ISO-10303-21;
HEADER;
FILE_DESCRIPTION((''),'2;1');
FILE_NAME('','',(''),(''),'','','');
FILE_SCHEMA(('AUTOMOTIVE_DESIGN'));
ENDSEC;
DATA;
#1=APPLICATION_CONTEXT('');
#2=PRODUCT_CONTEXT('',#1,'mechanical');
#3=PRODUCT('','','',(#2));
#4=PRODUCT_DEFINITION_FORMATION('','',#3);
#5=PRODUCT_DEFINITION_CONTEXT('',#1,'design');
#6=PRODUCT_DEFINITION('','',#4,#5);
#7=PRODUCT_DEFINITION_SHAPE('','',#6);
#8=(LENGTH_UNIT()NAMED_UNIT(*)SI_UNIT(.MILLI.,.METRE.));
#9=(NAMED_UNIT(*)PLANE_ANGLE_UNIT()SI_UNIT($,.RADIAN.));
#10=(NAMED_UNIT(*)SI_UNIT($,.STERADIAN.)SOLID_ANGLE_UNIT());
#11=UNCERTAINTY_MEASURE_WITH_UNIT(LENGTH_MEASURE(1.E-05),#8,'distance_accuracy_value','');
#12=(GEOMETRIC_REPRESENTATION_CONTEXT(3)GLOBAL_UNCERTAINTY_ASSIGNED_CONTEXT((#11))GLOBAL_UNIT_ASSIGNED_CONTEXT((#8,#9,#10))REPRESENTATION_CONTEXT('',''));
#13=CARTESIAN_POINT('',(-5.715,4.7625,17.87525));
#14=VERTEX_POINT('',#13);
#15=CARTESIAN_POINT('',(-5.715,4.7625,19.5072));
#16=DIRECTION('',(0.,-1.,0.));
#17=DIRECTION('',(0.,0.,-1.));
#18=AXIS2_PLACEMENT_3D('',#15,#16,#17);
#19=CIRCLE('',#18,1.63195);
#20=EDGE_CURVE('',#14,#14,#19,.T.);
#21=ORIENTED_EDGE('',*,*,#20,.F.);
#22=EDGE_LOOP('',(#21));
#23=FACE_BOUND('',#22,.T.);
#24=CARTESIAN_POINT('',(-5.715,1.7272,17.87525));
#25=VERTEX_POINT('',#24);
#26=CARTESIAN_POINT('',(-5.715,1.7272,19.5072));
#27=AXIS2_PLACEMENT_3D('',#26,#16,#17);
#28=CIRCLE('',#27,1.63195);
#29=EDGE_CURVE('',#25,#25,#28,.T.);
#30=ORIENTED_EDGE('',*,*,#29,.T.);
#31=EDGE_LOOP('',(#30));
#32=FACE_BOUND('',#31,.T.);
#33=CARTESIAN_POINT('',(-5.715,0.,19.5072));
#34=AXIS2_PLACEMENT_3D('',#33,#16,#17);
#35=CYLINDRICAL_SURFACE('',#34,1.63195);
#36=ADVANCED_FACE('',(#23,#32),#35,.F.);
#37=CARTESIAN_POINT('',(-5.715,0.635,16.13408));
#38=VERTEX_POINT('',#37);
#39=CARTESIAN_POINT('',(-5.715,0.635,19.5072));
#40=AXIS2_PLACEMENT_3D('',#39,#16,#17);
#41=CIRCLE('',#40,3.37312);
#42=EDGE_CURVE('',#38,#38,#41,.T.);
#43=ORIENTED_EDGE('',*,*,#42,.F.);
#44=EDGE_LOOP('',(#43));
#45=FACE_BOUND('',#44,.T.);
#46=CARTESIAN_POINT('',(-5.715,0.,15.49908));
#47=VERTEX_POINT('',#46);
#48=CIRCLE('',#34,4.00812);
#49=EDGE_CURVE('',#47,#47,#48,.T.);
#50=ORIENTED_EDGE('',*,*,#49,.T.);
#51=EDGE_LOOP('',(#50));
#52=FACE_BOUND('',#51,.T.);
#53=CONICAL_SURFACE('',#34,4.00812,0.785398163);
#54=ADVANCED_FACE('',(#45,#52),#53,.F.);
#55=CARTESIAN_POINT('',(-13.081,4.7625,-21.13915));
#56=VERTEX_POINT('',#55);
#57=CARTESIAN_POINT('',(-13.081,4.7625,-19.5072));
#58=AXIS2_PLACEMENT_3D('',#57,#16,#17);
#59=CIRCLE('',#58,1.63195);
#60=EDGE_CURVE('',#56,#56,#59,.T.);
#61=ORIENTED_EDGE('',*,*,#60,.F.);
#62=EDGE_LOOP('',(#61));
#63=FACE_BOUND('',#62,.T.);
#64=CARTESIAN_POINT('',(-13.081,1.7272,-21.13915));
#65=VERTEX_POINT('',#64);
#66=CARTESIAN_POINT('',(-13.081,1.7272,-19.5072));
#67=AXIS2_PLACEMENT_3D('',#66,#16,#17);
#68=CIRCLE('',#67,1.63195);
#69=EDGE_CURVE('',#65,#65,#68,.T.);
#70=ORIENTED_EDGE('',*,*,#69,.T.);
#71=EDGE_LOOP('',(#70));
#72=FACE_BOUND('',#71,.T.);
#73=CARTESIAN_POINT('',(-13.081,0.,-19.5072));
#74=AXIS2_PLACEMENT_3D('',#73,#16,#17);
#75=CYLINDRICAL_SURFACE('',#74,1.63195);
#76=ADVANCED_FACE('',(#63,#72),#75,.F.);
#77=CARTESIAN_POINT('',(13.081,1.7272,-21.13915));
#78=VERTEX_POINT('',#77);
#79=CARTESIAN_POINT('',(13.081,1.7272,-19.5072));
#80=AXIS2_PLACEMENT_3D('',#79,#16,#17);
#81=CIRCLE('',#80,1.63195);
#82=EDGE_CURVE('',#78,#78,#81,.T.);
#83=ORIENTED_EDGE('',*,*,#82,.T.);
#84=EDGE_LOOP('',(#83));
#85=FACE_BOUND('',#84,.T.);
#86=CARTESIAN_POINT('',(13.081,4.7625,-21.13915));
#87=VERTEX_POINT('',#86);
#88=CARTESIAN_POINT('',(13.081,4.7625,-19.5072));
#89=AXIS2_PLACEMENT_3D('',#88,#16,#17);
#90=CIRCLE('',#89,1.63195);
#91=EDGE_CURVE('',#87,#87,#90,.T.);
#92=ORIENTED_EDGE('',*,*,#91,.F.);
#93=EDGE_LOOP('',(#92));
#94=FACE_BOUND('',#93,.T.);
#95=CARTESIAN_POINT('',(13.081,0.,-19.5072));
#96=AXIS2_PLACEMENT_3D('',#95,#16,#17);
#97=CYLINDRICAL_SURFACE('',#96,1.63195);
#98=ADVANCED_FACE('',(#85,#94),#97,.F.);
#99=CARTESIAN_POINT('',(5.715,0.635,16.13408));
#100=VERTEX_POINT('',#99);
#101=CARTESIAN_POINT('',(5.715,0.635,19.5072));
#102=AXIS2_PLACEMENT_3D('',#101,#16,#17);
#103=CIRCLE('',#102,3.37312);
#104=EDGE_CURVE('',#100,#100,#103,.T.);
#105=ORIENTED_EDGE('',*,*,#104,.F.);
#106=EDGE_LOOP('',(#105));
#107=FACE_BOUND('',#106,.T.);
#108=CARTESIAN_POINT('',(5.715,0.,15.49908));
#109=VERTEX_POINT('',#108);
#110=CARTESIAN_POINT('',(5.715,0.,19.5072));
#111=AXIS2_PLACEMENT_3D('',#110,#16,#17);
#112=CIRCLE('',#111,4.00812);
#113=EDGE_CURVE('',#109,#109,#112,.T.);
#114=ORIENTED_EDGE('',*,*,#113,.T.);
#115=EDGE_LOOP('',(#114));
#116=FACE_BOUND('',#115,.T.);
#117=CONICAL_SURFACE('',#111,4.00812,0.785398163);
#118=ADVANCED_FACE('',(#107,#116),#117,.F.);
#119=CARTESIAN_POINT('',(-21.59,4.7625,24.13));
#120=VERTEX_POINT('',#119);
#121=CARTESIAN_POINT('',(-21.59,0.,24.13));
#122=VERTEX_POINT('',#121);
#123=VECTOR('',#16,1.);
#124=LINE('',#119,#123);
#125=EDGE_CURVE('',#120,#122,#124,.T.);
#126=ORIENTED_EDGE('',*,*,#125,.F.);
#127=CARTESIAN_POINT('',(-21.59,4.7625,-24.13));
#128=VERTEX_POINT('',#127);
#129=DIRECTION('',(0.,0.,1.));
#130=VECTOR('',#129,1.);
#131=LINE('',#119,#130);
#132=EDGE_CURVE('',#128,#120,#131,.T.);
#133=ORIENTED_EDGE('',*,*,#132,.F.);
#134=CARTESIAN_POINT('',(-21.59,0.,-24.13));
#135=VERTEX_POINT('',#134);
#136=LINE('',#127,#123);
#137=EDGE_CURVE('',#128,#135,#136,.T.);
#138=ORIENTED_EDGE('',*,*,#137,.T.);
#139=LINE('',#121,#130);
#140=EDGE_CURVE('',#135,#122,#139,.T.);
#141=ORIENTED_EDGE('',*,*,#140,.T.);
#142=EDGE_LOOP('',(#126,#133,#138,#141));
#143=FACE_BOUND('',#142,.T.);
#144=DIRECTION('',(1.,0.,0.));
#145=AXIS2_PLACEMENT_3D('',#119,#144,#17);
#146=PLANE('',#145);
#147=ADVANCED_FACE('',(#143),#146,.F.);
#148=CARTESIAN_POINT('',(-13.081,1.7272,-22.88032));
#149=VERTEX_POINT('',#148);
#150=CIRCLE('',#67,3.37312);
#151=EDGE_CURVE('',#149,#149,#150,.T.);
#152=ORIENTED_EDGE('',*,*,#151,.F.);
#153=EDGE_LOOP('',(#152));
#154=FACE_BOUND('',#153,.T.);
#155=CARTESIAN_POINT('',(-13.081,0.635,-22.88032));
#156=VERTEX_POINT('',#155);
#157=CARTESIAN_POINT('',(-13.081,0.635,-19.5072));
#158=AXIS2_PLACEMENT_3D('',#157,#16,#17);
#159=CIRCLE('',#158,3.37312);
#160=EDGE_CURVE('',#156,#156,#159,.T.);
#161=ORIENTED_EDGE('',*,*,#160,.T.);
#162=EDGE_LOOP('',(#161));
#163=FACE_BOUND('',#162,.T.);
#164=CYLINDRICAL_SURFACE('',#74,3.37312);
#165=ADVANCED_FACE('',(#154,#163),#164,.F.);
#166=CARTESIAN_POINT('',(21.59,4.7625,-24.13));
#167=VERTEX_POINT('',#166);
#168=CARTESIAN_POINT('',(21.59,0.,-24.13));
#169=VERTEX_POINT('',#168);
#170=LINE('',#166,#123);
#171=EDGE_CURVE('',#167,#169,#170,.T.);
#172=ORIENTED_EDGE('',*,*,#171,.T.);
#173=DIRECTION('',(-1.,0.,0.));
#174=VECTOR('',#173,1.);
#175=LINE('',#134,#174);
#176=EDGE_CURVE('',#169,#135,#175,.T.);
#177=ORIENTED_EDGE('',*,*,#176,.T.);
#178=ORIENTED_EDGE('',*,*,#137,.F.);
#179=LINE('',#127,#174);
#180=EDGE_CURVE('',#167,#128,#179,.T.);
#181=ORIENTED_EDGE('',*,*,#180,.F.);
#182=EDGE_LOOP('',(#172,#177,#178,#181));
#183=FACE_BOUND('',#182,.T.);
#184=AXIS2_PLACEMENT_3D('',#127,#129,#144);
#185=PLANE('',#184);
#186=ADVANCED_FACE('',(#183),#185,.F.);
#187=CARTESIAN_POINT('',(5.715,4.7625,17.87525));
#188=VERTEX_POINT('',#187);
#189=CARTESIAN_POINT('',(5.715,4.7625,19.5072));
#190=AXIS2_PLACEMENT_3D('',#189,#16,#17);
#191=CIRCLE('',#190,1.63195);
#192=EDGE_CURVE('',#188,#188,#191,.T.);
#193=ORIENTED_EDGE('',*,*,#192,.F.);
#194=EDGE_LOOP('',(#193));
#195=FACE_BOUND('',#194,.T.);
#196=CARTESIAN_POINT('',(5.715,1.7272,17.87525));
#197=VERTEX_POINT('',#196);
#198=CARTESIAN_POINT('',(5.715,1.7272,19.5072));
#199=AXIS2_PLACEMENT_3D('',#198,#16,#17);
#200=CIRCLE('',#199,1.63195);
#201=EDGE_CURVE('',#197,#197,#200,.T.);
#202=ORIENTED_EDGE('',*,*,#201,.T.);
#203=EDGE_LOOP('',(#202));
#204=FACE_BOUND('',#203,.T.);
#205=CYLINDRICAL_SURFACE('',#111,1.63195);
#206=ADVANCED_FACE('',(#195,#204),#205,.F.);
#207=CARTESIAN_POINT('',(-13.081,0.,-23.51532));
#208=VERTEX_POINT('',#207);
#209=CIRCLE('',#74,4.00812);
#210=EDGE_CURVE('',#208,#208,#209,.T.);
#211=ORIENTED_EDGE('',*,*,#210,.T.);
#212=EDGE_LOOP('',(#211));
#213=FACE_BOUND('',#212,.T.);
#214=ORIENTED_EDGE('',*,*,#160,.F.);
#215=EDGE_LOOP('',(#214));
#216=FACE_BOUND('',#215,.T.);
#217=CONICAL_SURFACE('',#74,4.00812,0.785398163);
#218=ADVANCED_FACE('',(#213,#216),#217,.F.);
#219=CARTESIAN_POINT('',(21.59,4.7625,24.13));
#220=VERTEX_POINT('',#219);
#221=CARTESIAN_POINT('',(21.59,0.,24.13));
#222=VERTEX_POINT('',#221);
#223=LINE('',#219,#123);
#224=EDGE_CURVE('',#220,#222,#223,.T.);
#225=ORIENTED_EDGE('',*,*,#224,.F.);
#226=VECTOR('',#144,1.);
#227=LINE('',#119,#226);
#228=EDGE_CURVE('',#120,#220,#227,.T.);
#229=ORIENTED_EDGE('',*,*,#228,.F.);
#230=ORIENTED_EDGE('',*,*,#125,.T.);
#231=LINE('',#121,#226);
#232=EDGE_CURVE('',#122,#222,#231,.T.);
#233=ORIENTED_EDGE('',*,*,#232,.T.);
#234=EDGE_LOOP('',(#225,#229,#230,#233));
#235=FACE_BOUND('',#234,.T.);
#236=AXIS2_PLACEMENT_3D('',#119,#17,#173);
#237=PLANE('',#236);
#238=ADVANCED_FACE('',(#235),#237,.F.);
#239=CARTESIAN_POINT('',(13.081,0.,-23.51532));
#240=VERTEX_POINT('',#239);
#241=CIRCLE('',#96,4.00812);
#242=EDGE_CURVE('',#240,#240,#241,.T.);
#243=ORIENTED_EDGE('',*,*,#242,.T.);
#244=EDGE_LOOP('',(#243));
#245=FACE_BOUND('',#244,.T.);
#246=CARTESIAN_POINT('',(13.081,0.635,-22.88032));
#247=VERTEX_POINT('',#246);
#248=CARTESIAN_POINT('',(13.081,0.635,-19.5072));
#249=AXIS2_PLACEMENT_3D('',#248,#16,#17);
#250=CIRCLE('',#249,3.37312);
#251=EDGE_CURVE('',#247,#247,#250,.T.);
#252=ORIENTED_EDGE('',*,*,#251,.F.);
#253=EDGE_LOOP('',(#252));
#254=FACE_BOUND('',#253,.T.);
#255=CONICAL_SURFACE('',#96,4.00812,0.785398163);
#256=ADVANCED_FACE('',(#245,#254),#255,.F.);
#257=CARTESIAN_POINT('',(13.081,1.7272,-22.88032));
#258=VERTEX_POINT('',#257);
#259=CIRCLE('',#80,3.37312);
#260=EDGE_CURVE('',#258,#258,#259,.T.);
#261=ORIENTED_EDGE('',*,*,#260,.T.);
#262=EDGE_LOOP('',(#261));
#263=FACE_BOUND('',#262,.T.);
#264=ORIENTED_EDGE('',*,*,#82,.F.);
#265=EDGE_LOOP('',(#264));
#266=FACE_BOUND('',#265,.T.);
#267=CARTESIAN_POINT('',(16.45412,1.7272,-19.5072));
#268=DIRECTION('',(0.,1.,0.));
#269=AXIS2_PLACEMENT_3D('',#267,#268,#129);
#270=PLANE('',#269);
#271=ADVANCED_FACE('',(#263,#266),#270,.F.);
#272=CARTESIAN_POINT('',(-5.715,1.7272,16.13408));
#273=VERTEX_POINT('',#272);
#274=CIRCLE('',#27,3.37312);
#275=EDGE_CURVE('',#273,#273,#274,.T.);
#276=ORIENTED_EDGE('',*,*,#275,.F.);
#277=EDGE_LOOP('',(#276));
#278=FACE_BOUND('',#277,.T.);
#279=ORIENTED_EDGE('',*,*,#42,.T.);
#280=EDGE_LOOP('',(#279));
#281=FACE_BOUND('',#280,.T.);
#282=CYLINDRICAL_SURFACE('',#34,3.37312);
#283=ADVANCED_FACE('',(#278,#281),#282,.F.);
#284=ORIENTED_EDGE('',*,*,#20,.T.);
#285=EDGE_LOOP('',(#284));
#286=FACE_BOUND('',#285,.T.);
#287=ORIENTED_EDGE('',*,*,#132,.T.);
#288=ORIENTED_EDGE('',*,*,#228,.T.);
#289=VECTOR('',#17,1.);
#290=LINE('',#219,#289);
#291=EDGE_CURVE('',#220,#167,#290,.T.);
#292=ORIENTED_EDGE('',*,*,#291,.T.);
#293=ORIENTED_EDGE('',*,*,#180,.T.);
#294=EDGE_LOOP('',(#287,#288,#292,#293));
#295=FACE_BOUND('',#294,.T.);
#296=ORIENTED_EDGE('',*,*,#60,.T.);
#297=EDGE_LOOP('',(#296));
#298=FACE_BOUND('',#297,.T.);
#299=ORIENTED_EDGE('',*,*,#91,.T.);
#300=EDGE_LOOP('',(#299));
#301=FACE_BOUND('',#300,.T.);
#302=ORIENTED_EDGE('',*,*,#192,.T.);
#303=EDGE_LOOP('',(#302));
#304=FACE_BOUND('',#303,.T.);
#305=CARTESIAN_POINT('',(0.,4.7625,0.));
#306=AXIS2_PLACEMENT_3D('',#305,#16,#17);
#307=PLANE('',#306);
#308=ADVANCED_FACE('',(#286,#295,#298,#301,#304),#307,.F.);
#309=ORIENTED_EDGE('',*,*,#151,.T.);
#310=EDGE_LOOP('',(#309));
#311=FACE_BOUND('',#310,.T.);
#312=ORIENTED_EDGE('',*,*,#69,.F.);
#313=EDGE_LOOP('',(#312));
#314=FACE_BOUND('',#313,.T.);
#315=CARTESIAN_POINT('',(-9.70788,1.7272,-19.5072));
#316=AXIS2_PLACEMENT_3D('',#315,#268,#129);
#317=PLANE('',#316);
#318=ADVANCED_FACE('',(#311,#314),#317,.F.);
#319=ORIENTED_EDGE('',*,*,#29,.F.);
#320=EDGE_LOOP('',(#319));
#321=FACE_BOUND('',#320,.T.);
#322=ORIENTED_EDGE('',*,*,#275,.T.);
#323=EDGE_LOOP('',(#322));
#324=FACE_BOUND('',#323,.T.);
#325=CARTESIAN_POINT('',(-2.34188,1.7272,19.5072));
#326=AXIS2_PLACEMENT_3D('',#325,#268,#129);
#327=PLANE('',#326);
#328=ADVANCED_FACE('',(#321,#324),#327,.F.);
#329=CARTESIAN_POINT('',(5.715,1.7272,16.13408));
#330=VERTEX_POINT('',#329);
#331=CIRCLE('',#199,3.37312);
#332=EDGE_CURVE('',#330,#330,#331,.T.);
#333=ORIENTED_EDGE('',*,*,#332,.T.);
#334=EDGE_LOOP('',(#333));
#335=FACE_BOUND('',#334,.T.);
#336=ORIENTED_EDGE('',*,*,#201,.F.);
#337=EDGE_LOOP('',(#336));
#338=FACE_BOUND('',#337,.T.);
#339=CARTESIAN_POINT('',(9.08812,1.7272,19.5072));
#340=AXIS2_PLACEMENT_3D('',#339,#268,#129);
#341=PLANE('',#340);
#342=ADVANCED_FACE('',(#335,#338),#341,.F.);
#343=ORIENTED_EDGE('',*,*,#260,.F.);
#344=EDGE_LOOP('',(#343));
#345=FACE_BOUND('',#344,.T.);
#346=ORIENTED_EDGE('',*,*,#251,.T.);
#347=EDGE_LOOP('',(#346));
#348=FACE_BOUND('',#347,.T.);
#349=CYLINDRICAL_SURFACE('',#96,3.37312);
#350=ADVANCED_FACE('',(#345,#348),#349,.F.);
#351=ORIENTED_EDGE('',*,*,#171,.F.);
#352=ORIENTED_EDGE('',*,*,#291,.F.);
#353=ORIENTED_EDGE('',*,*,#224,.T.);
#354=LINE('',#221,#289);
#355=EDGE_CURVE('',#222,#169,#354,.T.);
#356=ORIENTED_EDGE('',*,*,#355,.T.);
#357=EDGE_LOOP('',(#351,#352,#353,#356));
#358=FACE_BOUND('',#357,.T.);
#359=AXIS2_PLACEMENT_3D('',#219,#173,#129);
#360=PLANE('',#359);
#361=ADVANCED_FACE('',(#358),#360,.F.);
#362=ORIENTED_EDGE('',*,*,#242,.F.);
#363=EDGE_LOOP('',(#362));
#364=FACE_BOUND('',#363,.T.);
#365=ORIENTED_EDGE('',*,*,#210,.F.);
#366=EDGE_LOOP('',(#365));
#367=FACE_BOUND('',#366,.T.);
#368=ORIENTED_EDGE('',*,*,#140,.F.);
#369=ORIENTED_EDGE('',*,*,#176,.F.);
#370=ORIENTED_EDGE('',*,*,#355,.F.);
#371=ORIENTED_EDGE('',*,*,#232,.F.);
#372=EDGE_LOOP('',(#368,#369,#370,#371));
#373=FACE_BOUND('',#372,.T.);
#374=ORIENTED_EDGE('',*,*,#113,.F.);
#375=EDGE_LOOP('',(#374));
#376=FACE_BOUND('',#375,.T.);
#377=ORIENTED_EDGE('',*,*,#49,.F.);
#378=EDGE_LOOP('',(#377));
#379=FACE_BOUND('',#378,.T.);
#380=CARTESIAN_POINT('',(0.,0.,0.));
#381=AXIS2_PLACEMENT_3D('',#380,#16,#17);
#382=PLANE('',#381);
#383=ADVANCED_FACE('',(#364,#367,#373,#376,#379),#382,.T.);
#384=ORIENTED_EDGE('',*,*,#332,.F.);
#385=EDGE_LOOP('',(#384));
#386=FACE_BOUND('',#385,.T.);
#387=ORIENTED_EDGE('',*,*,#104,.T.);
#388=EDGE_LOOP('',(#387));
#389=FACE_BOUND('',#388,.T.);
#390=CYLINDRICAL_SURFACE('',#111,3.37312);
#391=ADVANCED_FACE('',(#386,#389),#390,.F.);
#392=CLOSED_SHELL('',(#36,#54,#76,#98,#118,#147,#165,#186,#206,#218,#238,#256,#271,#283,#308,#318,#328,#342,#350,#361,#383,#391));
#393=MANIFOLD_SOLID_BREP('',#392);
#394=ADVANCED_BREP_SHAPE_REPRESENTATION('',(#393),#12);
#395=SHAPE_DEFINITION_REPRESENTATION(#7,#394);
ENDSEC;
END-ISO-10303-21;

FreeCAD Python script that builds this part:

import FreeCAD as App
import Part
import Sketcher
from FreeCAD import Vector
Q = App.Units.Quantity

doc = App.newDocument("Part")
body = doc.addObject("PartDesign::Body", "Body")

sketch1 = doc.addObject("Sketcher::SketchObject", "Sketch")
body.addObject(sketch1)
sketch1.AttachmentSupport = (doc.XZ_Plane, [""])
sketch1.MapMode = "FlatFace"
sketch1.addGeometry(Part.LineSegment(Vector(-21.59, -24.13, 0), Vector(-21.59, 24.13, 0)), False)
sketch1.addGeometry(Part.LineSegment(Vector(-21.59, 24.13, 0), Vector(21.59, 24.13, 0)), False)
sketch1.addGeometry(Part.LineSegment(Vector(21.59, 24.13, 0), Vector(21.59, -24.13, 0)), False)
sketch1.addGeometry(Part.LineSegment(Vector(21.59, -24.13, 0), Vector(-21.59, -24.13, 0)), False)
sketch1.addConstraint(Sketcher.Constraint("Coincident", 0, 2, 1, 1))
sketch1.addConstraint(Sketcher.Constraint("Coincident", 1, 2, 2, 1))
sketch1.addConstraint(Sketcher.Constraint("Coincident", 2, 2, 3, 1))
sketch1.addConstraint(Sketcher.Constraint("Coincident", 3, 2, 0, 1))
sketch1.addConstraint(Sketcher.Constraint("Vertical", 0))
sketch1.addConstraint(Sketcher.Constraint("Horizontal", 1))
sketch1.addConstraint(Sketcher.Constraint("Vertical", 2))
sketch1.addConstraint(Sketcher.Constraint("Horizontal", 3))
sketch1.addConstraint(Sketcher.Constraint("Symmetric", 0, 2, 2, 2, -1, 1))
sketch1.addConstraint(Sketcher.Constraint("DistanceX", 1, 1, 1, 2, Q("1.7 in")))
sketch1.addConstraint(Sketcher.Constraint("DistanceY", 0, 1, 0, 2, Q("1.9 in")))
pad1 = doc.addObject("PartDesign::Pad", "Pad")
body.addObject(pad1)
pad1.Profile = sketch1
pad1.Length = Q("0.1875 in")
pad1.Reversed = True

sketch2 = doc.addObject("Sketcher::SketchObject", "Sketch001")
body.addObject(sketch2)
sketch2.AttachmentSupport = (doc.YZ_Plane, [""])
sketch2.MapMode = "FlatFace"
sketch2.AttachmentOffset = App.Placement(Vector(0, 0, 0.225 * 25.4), App.Rotation())
sketch2.addGeometry(Part.LineSegment(Vector(4.7625, 19.5072, 0), Vector(0, 19.5072, 0)), False)
sketch2.addGeometry(Part.LineSegment(Vector(0, 19.5072, 0), Vector(0, 15.49908, 0)), False)
sketch2.addGeometry(Part.LineSegment(Vector(0, 15.49908, 0), Vector(0.635, 16.13408, 0)), False)
sketch2.addGeometry(Part.LineSegment(Vector(0.635, 16.13408, 0), Vector(1.7272, 16.13408, 0)), False)
sketch2.addGeometry(Part.LineSegment(Vector(1.7272, 16.13408, 0), Vector(1.7272, 17.87525, 0)), False)
sketch2.addGeometry(Part.LineSegment(Vector(1.7272, 17.87525, 0), Vector(4.7625, 17.87525, 0)), False)
sketch2.addGeometry(Part.LineSegment(Vector(4.7625, 17.87525, 0), Vector(4.7625, 19.5072, 0)), False)
sketch2.addGeometry(Part.LineSegment(Vector(0, 19.5072, 0), Vector(4.7625, 19.5072, 0)), True)
sketch2.addConstraint(Sketcher.Constraint("Coincident", 0, 2, 1, 1))
sketch2.addConstraint(Sketcher.Constraint("Coincident", 1, 2, 2, 1))
sketch2.addConstraint(Sketcher.Constraint("Coincident", 2, 2, 3, 1))
sketch2.addConstraint(Sketcher.Constraint("Coincident", 3, 2, 4, 1))
sketch2.addConstraint(Sketcher.Constraint("Coincident", 4, 2, 5, 1))
sketch2.addConstraint(Sketcher.Constraint("Coincident", 5, 2, 6, 1))
sketch2.addConstraint(Sketcher.Constraint("Coincident", 6, 2, 0, 1))
sketch2.addConstraint(Sketcher.Constraint("Horizontal", 0))
sketch2.addConstraint(Sketcher.Constraint("Vertical", 1))
sketch2.addConstraint(Sketcher.Constraint("Horizontal", 3))
sketch2.addConstraint(Sketcher.Constraint("Vertical", 4))
sketch2.addConstraint(Sketcher.Constraint("Horizontal", 5))
sketch2.addConstraint(Sketcher.Constraint("Vertical", 6))
sketch2.addConstraint(Sketcher.Constraint("Horizontal", 7))
sketch2.addConstraint(Sketcher.Constraint("Coincident", 7, 1, 0, 2))
sketch2.addConstraint(Sketcher.Constraint("PointOnObject", 0, 2, -2))
sketch2.addConstraint(Sketcher.Constraint("Vertical", 5, 2, 7, 2))
sketch2.addConstraint(Sketcher.Constraint("Angle", 2, Q("45 deg")))
sketch2.addConstraint(Sketcher.Constraint("DistanceX", 0, 2, 0, 1, Q("0.1875 in")))
sketch2.addConstraint(Sketcher.Constraint("DistanceX", 3, 1, 3, 2, Q("0.043 in")))
sketch2.addConstraint(Sketcher.Constraint("DistanceX", 5, 1, 5, 2, Q("0.1195 in")))
sketch2.addConstraint(Sketcher.Constraint("DistanceY", 1, 2, 1, 1, Q("0.1578 in")))
sketch2.addConstraint(Sketcher.Constraint("DistanceY", -1, 1, 0, 2, Q("0.768 in")))
sketch2.addConstraint(Sketcher.Constraint("DistanceY", 4, 1, 4, 2, 1.74117))
groove = doc.addObject("PartDesign::Groove", "Groove")
body.addObject(groove)
groove.Profile = sketch2
groove.ReferenceAxis = (sketch2, ["Axis0"])
groove.Angle = 360
doc.recompute()

linearpattern = doc.addObject("PartDesign::LinearPattern", "LinearPattern")
body.addObject(linearpattern)
linearpattern.Originals = [groove]
linearpattern.Direction = (doc.X_Axis, [""])
linearpattern.Mode = "offset"
linearpattern.Offset = Q("0.45 in")
linearpattern.Occurrences = 2
linearpattern.Reversed = True
body.Tip = linearpattern
doc.recompute()

datumline = doc.addObject("PartDesign::Line", "DatumLine")
body.addObject(datumline)
datumline.Placement = App.Placement(Vector(0, 0, 0), App.Rotation(Vector(0, 0, 1), Vector(-0.434027225, 0, -0.900899754)))
linearpattern2 = doc.addObject("PartDesign::LinearPattern", "LinearPattern001")
body.addObject(linearpattern2)
linearpattern2.Originals = [groove]
linearpattern2.Direction = (datumline, [""])
linearpattern2.Mode = "offset"
linearpattern2.Offset = 43.306039
linearpattern2.Occurrences = 2
body.Tip = linearpattern2
doc.recompute()

datumline2 = doc.addObject("PartDesign::Line", "DatumLine001")
body.addObject(datumline2)
datumline2.Placement = App.Placement(Vector(0, 0, 0), App.Rotation(Vector(0, 0, 1), Vector(0.185524414, 0, -0.982639655)))
linearpattern3 = doc.addObject("PartDesign::LinearPattern", "LinearPattern002")
body.addObject(linearpattern3)
linearpattern3.Originals = [groove]
linearpattern3.Direction = (datumline2, [""])
linearpattern3.Mode = "offset"
linearpattern3.Offset = 39.703669
linearpattern3.Occurrences = 2
body.Tip = linearpattern3

doc.recompute()
